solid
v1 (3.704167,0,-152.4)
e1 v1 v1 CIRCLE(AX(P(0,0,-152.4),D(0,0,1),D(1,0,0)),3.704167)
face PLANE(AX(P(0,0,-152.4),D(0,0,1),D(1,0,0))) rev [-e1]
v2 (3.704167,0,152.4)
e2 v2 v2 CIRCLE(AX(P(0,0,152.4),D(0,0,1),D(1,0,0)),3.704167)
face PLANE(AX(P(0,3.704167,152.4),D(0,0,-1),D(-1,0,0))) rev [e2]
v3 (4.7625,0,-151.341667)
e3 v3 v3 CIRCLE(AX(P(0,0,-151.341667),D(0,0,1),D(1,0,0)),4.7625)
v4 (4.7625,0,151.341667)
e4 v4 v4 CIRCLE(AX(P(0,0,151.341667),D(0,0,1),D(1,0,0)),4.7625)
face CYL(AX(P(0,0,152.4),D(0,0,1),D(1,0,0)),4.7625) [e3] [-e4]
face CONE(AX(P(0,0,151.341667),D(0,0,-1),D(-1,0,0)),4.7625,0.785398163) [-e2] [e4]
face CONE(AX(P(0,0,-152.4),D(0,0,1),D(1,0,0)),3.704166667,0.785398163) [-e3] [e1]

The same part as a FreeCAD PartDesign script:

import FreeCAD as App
import Part
import Sketcher
from FreeCAD import Vector
Q = App.Units.Quantity


def add_polygon(sketch, points):
    """Adds a closed chain of lines whose ends are joined by coincident constraints."""
    first, n = sketch.GeometryCount, len(points)
    for a, b in zip(points, points[1:] + points[:1]):
        sketch.addGeometry(Part.LineSegment(App.Vector(*a, 0), App.Vector(*b, 0)), False)
    for i in range(n):
        sketch.addConstraint(Sketcher.Constraint("Coincident", first + i, 2, first + (i + 1) % n, 1))

doc = App.newDocument("Part")
params = doc.addObject("Spreadsheet::Sheet", "Params")
for row, (alias, value) in enumerate([
    ("sketch1_height", "12 in"),
    ("revolution_angle", "360 deg"),
], start=1):
    params.set(f"A{row}", alias)
    params.set(f"B{row}", "=" + value)
    params.setAlias(f"B{row}", alias)

body = doc.addObject("PartDesign::Body", "Body")

# Sketch on YZ plane
sketch1 = doc.addObject("Sketcher::SketchObject", "Sketch")
body.addObject(sketch1)
sketch1.AttachmentSupport = (doc.YZ_Plane, [""])
sketch1.MapMode = "FlatFace"
add_polygon(sketch1, [(0, 152.4), (0, -152.4), (3.7, -152.4), (4.8, -151.3), (4.8, 151.3), (3.7, 152.4)])  # lines 0-5
sketch1.addConstraint([
    Sketcher.Constraint("Vertical", 0),
    Sketcher.Constraint("Horizontal", 1),
    Sketcher.Constraint("Vertical", 3),
    Sketcher.Constraint("Horizontal", 5),
    Sketcher.Constraint("Symmetric", 0, 2, 5, 2, -1, 1),
    Sketcher.Constraint("Perpendicular", 2, 4),
    Sketcher.Constraint("Vertical", 1, 2, 4, 2),
    Sketcher.Constraint("Equal", 2, 4),
    Sketcher.Constraint("DistanceY", 0, 2, 0, 1, Q("12 in")),
    Sketcher.Constraint("DistanceX", -1, 1, 2, 2, Q("0.1875 in")),
    Sketcher.Constraint("Distance", 2, 1.496709),
])
sketch1.setExpression("Constraints[14]", "Params.sketch1_height")
revolution = doc.addObject("PartDesign::Revolution", "Revolution")
body.addObject(revolution)
revolution.Profile = sketch1
revolution.ReferenceAxis = (sketch1, ["V_Axis"])
revolution.setExpression("Angle", "Params.revolution_angle")

doc.recompute()
